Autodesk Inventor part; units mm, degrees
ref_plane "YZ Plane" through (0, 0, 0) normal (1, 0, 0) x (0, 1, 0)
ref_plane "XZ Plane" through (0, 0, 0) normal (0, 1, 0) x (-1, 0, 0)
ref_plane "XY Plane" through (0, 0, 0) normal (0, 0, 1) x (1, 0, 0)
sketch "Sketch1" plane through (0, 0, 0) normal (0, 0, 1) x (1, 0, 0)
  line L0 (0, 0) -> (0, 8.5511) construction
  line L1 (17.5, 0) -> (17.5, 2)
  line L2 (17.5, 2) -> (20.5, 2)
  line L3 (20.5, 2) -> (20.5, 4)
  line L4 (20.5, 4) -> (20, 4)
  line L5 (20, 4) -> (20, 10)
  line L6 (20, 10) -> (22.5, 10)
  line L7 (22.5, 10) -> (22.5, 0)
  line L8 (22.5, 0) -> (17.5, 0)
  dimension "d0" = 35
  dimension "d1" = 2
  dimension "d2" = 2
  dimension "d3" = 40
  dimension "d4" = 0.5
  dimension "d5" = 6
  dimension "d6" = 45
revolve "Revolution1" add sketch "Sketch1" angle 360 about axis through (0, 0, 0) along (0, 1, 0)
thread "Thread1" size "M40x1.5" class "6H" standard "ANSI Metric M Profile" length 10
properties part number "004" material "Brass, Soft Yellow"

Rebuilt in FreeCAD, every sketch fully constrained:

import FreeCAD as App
import Part
import Sketcher

V = App.Vector

doc = App.newDocument("Part")
body = doc.addObject("PartDesign::Body", "Body")

sketch1 = doc.addObject("Sketcher::SketchObject", "Sketch")
body.addObject(sketch1)
sketch1.AttachmentSupport = (doc.XY_Plane, [""])
sketch1.MapMode = "FlatFace"
sketch1.addGeometry(Part.LineSegment(V(17.5, 2, 0), V(17.5, 0, 0)), False)
sketch1.addGeometry(Part.LineSegment(V(17.5, 0, 0), V(22.5, 0, 0)), False)
sketch1.addGeometry(Part.LineSegment(V(22.5, 0, 0), V(22.5, 10, 0)), False)
sketch1.addGeometry(Part.LineSegment(V(22.5, 10, 0), V(20, 10, 0)), False)
sketch1.addGeometry(Part.LineSegment(V(20, 10, 0), V(20, 4, 0)), False)
sketch1.addGeometry(Part.LineSegment(V(20, 4, 0), V(20.5, 4, 0)), False)
sketch1.addGeometry(Part.LineSegment(V(20.5, 4, 0), V(20.5, 2, 0)), False)
sketch1.addGeometry(Part.LineSegment(V(20.5, 2, 0), V(17.5, 2, 0)), False)
sketch1.addConstraint(Sketcher.Constraint("Coincident", 0, 2, 1, 1))
sketch1.addConstraint(Sketcher.Constraint("Coincident", 1, 2, 2, 1))
sketch1.addConstraint(Sketcher.Constraint("Coincident", 2, 2, 3, 1))
sketch1.addConstraint(Sketcher.Constraint("Coincident", 3, 2, 4, 1))
sketch1.addConstraint(Sketcher.Constraint("Coincident", 4, 2, 5, 1))
sketch1.addConstraint(Sketcher.Constraint("Coincident", 5, 2, 6, 1))
sketch1.addConstraint(Sketcher.Constraint("Coincident", 6, 2, 7, 1))
sketch1.addConstraint(Sketcher.Constraint("Coincident", 7, 2, 0, 1))
sketch1.addConstraint(Sketcher.Constraint("Vertical", 0))
sketch1.addConstraint(Sketcher.Constraint("Horizontal", 1))
sketch1.addConstraint(Sketcher.Constraint("Vertical", 2))
sketch1.addConstraint(Sketcher.Constraint("Horizontal", 3))
sketch1.addConstraint(Sketcher.Constraint("Vertical", 4))
sketch1.addConstraint(Sketcher.Constraint("Horizontal", 5))
sketch1.addConstraint(Sketcher.Constraint("Vertical", 6))
sketch1.addConstraint(Sketcher.Constraint("Horizontal", 7))
sketch1.addConstraint(Sketcher.Constraint("PointOnObject", 0, 2, -1))
sketch1.addConstraint(Sketcher.Constraint("Equal", 0, 6))
sketch1.addConstraint(Sketcher.Constraint("DistanceY", 0, 2, 0, 1, 2.0))
sketch1.addConstraint(Sketcher.Constraint("DistanceY", 4, 2, 4, 1, 6.0))
sketch1.addConstraint(Sketcher.Constraint("DistanceX", 5, 1, 5, 2, 0.5))
sketch1.addConstraint(Sketcher.Constraint("DistanceX", 5, 2, 1, 2, 2.0))
sketch1.addConstraint(Sketcher.Constraint("DistanceX", 1, 1, 1, 2, 5.0))
sketch1.addConstraint(Sketcher.Constraint("DistanceX", -1, 1, 3, 2, 20.0))
revolution = doc.addObject("PartDesign::Revolution", "Revolution")
body.addObject(revolution)
revolution.Profile = sketch1
revolution.ReferenceAxis = (sketch1, ["V_Axis"])
revolution.Angle = 360

doc.recompute()
